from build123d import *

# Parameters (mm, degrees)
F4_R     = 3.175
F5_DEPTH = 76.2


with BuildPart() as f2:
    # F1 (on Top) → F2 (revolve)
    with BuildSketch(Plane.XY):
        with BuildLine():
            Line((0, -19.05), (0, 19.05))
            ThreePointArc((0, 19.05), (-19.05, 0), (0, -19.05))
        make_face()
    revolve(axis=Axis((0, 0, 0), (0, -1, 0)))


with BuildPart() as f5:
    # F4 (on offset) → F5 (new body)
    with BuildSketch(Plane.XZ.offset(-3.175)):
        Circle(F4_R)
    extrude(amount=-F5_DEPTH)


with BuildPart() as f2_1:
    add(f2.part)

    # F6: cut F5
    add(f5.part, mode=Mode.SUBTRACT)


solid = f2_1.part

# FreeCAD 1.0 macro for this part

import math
import FreeCAD as App
import Part
import Sketcher
Q = App.Units.Quantity

doc = App.newDocument("Part")
params = doc.addObject("Spreadsheet::Sheet", "Params")
for row, (alias, value) in enumerate([
    ("sketch1_radius", "0.75 in"),
    ("revolution_angle", "360 deg"),
    ("sketch2_diameter", "0.25 in"),
    ("pad1_length", "3 in"),
], start=1):
    params.set(f"A{row}", alias)
    params.set(f"B{row}", "=" + value)
    params.setAlias(f"B{row}", alias)

body = doc.addObject("PartDesign::Body", "Body")

# Sketch on XY plane
sketch1 = doc.addObject("Sketcher::SketchObject", "Sketch")
body.addObject(sketch1)
sketch1.AttachmentSupport = (doc.XY_Plane, [""])
sketch1.MapMode = "FlatFace"
sketch1.addGeometry(Part.LineSegment(App.Vector(0, -19, 0), App.Vector(0, 19, 0)), False)
sketch1.addGeometry(Part.ArcOfCircle(Part.Circle(App.Vector(0, 0, 0), App.Vector(0, 0, 1), 19), math.radians(90), math.radians(270)), False)
sketch1.addConstraint(Sketcher.Constraint("Coincident", 0, 1, 1, 2))
sketch1.addConstraint(Sketcher.Constraint("Coincident", 1, 1, 0, 2))
sketch1.addConstraint(Sketcher.Constraint("Vertical", 0))
sketch1.addConstraint(Sketcher.Constraint("Coincident", 1, 3, -1, 1))
sketch1.addConstraint(Sketcher.Constraint("PointOnObject", 0, 1, -2))
sketch1.addConstraint(Sketcher.Constraint("Radius", 1, Q("0.75 in")))
sketch1.setExpression("Constraints[5]", "Params.sketch1_radius")
revolution = doc.addObject("PartDesign::Revolution", "Revolution")
body.addObject(revolution)
revolution.Profile = sketch1
revolution.ReferenceAxis = (sketch1, ["V_Axis"])
revolution.setExpression("Angle", "Params.revolution_angle")
body2 = doc.addObject("PartDesign::Body", "Body001")

# Sketch on XZ plane
sketch2 = doc.addObject("Sketcher::SketchObject", "Sketch001")
body2.addObject(sketch2)
sketch2.AttachmentSupport = (doc.getObject("XZ_Plane001"), [""])
sketch2.MapMode = "FlatFace"
sketch2.AttachmentOffset = App.Placement(App.Vector(0, 0, -0.125 * 25.4), App.Rotation())
sketch2.addGeometry(Part.Circle(App.Vector(0, 0, 0), App.Vector(0, 0, 1), 3.2), False)
sketch2.addConstraint(Sketcher.Constraint("Coincident", 0, 3, -1, 1))
sketch2.addConstraint(Sketcher.Constraint("Diameter", 0, Q("0.25 in")))
sketch2.setExpression("Constraints[1]", "Params.sketch2_diameter")
pad1 = doc.addObject("PartDesign::Pad", "Pad")
body2.addObject(pad1)
pad1.Profile = sketch2
pad1.setExpression("Length", "Params.pad1_length")
pad1.Reversed = True
doc.recompute()

boolean = doc.addObject("PartDesign::Boolean", "Boolean")
body.addObject(boolean)
boolean.Type = "Cut"
boolean.addObjects([body2])

doc.recompute()
